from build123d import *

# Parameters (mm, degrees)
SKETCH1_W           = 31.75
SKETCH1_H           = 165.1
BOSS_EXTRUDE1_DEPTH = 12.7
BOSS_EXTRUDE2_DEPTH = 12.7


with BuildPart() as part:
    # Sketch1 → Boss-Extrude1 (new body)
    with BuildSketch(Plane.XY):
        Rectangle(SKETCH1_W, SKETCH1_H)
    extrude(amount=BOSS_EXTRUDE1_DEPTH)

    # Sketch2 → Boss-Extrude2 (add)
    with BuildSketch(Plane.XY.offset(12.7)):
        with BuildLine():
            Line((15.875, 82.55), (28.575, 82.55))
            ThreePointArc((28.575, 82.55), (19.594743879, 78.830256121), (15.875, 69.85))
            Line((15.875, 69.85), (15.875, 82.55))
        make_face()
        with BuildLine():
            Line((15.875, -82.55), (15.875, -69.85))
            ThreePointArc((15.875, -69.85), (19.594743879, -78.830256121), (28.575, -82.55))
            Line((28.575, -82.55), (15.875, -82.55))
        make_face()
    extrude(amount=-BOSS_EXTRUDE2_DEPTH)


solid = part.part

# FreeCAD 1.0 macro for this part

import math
import FreeCAD as App
import Part
import Sketcher
from FreeCAD import Vector
Q = App.Units.Quantity

doc = App.newDocument("Part")
body = doc.addObject("PartDesign::Body", "Body")

sketch1 = body.newObject("Sketcher::SketchObject", "Sketch")
sketch1.AttachmentSupport = (doc.getObject("XY_Plane"), [""])
sketch1.MapMode = "FlatFace"
sketch1.addGeometry([
    Part.LineSegment(Vector(-15.875, 82.55, 0), Vector(-15.875, -82.55, 0)),
    Part.LineSegment(Vector(-15.875, -82.55, 0), Vector(15.875, -82.55, 0)),
    Part.LineSegment(Vector(15.875, -82.55, 0), Vector(15.875, 82.55, 0)),
    Part.LineSegment(Vector(15.875, 82.55, 0), Vector(-15.875, 82.55, 0)),
], False)
sketch1.addConstraint([
    Sketcher.Constraint("Coincident", 0, 2, 1, 1),
    Sketcher.Constraint("Coincident", 1, 2, 2, 1),
    Sketcher.Constraint("Coincident", 2, 2, 3, 1),
    Sketcher.Constraint("Coincident", 3, 2, 0, 1),
    Sketcher.Constraint("Vertical", 0),
    Sketcher.Constraint("Horizontal", 1),
    Sketcher.Constraint("Vertical", 2),
    Sketcher.Constraint("Horizontal", 3),
    Sketcher.Constraint("Symmetric", 0, 2, 2, 2, -1, 1),
    Sketcher.Constraint("DistanceY", 0, 2, 0, 1, Q("6.5 in")),
    Sketcher.Constraint("DistanceX", 1, 1, 1, 2, Q("1.25 in")),
])
pad1 = body.newObject("PartDesign::Pad", "Pad")
pad1.Profile = sketch1
pad1.Length = Q("0.5 in")

sketch2 = body.newObject("Sketcher::SketchObject", "Sketch001")
sketch2.AttachmentSupport = (doc.getObject("XY_Plane"), [""])
sketch2.MapMode = "FlatFace"
sketch2.AttachmentOffset = App.Placement(Vector(0, 0, 0.5 * 25.4), App.Rotation())
sketch2.addGeometry([
    Part.LineSegment(Vector(28.575, 82.55, 0), Vector(15.875, 82.55, 0)),
    Part.LineSegment(Vector(15.875, 82.55, 0), Vector(15.875, 69.85, 0)),
    Part.ArcOfCircle(Part.Circle(Vector(28.575, 69.85, 0), Vector(0, 0, 1), 12.7), math.radians(90), math.radians(180)),
    Part.LineSegment(Vector(15.875, -69.85, 0), Vector(15.875, -82.55, 0)),
    Part.LineSegment(Vector(15.875, -82.55, 0), Vector(28.575, -82.55, 0)),
    Part.ArcOfCircle(Part.Circle(Vector(28.575, -69.85, 0), Vector(0, 0, 1), 12.7), math.radians(180), math.radians(270)),
], False)
sketch2.addConstraint([
    Sketcher.Constraint("Coincident", 0, 2, 1, 1),
    Sketcher.Constraint("Tangent", 1, 2, 2, 2),
    Sketcher.Constraint("Tangent", 2, 1, 0, 1),
    Sketcher.Constraint("Coincident", 3, 2, 4, 1),
    Sketcher.Constraint("Tangent", 4, 2, 5, 2),
    Sketcher.Constraint("Tangent", 5, 1, 3, 1),
    Sketcher.Constraint("Horizontal", 0),
    Sketcher.Constraint("Vertical", 1),
    Sketcher.Constraint("Vertical", 3),
    Sketcher.Constraint("Horizontal", 4),
    Sketcher.Constraint("Equal", 2, 5),
    Sketcher.Constraint("Symmetric", 2, 3, 5, 3, -1),
    Sketcher.Constraint("Radius", 2, Q("0.5 in")),
    Sketcher.Constraint("DistanceY", 5, 3, 0, 2, Q("6 in")),
    Sketcher.Constraint("DistanceX", -1, 1, 2, 3, Q("1.125 in")),
])
pad2 = body.newObject("PartDesign::Pad", "Pad001")
pad2.Profile = sketch2
pad2.Length = Q("0.5 in")
pad2.Reversed = True

doc.recompute()
